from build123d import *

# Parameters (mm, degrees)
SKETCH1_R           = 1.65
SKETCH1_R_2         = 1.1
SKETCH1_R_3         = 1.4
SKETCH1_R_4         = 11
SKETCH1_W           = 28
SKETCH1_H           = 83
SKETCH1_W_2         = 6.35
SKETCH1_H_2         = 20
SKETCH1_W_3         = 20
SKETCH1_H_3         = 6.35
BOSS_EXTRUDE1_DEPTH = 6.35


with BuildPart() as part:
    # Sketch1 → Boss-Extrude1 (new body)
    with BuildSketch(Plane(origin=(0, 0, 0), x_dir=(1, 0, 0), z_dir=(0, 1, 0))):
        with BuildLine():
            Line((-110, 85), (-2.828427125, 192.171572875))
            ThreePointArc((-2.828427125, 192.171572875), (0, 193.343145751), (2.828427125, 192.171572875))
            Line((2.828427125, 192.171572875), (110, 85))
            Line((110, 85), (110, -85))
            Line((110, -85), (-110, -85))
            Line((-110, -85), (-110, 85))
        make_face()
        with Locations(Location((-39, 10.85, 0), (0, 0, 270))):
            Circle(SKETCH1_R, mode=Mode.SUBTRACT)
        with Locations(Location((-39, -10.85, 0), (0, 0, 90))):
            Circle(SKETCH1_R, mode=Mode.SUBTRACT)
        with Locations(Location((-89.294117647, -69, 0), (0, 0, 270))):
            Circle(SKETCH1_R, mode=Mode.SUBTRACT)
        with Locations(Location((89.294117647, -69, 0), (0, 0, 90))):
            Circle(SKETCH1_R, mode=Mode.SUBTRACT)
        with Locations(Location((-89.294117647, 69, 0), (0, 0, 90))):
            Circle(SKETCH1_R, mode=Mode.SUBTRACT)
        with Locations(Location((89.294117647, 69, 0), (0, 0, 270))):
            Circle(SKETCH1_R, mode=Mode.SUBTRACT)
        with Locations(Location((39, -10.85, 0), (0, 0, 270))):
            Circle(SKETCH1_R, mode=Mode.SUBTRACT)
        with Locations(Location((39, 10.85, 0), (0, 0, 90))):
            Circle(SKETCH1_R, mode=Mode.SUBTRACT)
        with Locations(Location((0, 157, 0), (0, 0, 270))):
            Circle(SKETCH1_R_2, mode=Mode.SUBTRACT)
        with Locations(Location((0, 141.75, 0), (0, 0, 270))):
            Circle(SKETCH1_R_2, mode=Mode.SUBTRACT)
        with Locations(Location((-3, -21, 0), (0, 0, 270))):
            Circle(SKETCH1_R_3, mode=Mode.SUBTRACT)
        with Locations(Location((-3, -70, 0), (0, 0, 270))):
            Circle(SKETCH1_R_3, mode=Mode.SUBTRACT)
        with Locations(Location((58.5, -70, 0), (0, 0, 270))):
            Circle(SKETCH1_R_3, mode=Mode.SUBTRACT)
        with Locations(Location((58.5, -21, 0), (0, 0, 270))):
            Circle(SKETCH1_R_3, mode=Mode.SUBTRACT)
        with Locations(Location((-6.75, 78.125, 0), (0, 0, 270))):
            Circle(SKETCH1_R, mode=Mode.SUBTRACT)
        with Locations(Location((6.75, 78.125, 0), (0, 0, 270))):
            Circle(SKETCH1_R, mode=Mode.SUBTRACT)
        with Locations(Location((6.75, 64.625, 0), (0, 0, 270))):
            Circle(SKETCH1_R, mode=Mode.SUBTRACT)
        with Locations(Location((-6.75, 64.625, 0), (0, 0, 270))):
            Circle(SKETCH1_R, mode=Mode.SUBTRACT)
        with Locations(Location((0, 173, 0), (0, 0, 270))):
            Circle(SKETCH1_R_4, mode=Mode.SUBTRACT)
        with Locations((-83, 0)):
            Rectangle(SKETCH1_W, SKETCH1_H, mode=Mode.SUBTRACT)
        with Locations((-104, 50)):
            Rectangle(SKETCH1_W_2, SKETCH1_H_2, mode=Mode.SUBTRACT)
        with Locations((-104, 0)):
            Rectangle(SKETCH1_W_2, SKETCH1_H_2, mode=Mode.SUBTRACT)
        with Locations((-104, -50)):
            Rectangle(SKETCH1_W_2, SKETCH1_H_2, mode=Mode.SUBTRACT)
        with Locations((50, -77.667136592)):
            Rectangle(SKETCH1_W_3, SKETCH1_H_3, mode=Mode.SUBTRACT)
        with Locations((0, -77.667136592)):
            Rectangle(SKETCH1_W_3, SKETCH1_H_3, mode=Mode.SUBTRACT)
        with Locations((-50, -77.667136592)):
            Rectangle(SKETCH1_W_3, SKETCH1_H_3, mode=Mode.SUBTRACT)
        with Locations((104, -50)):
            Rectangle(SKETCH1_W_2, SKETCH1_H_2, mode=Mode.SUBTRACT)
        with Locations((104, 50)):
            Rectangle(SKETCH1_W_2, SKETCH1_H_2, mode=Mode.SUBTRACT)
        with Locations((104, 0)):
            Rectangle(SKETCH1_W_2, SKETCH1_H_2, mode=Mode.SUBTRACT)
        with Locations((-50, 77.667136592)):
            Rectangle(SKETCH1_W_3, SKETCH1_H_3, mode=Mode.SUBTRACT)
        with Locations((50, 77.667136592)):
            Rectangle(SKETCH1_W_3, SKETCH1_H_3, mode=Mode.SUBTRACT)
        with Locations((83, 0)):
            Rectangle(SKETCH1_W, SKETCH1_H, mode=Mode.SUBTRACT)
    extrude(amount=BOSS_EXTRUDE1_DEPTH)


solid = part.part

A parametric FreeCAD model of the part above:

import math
import FreeCAD as App
import Part
import Sketcher
Q = App.Units.Quantity


def add_polygon(sketch, points):
    """Adds a closed chain of lines whose ends are joined by coincident constraints."""
    first, n = sketch.GeometryCount, len(points)
    for a, b in zip(points, points[1:] + points[:1]):
        sketch.addGeometry(Part.LineSegment(App.Vector(*a, 0), App.Vector(*b, 0)), False)
    for i in range(n):
        sketch.addConstraint(Sketcher.Constraint("Coincident", first + i, 2, first + (i + 1) % n, 1))

doc = App.newDocument("Part")
body = doc.addObject("PartDesign::Body", "Body")

# Sketch on XZ plane
sketch1 = body.newObject("Sketcher::SketchObject", "Sketch")
sketch1.AttachmentSupport = (doc.getObject("XZ_Plane"), [""])
sketch1.MapMode = "FlatFace"
sketch1.addGeometry(Part.LineSegment(App.Vector(-2.828427, -192.171573, 0), App.Vector(-110, -85, 0)), False)  # 0
sketch1.addGeometry(Part.LineSegment(App.Vector(-110, -85, 0), App.Vector(-110, 85, 0)), False)  # 1
sketch1.addGeometry(Part.LineSegment(App.Vector(-110, 85, 0), App.Vector(110, 85, 0)), False)  # 2
sketch1.addGeometry(Part.LineSegment(App.Vector(110, 85, 0), App.Vector(110, -85, 0)), False)  # 3
sketch1.addGeometry(Part.LineSegment(App.Vector(110, -85, 0), App.Vector(2.828427, -192.171573, 0)), False)  # 4
sketch1.addGeometry(Part.ArcOfCircle(Part.Circle(App.Vector(0, -189.343146, 0), App.Vector(0, 0, 1), 4), math.radians(-135), math.radians(-45)), False)  # 5
sketch1.addGeometry(Part.Circle(App.Vector(89.294118, 69, 0), App.Vector(0, 0, 1), 1.65), False)  # 6
add_polygon(sketch1, [(100.825, 60), (100.825, 40), (107.175, 40), (107.175, 60)])  # lines 7-10
sketch1.addGeometry(Part.Circle(App.Vector(58.5, 70, 0), App.Vector(0, 0, 1), 1.4), False)  # 11
sketch1.addGeometry(Part.Circle(App.Vector(58.5, 21, 0), App.Vector(0, 0, 1), 1.4), False)  # 12
add_polygon(sketch1, [(40, 80.842137), (40, 74.492137), (60, 74.492137), (60, 80.842137)])  # lines 13-16
add_polygon(sketch1, [(100.825, 10), (100.825, -10), (107.175, -10), (107.175, 10)])  # lines 17-20
add_polygon(sketch1, [(69, 41.5), (69, -41.5), (97, -41.5), (97, 41.5)])  # lines 21-24
add_polygon(sketch1, [(100.825, -40), (100.825, -60), (107.175, -60), (107.175, -40)])  # lines 25-28
sketch1.addGeometry(Part.Circle(App.Vector(39, 10.85, 0), App.Vector(0, 0, 1), 1.65), False)  # 29
sketch1.addGeometry(Part.Circle(App.Vector(39, -10.85, 0), App.Vector(0, 0, 1), 1.65), False)  # 30
add_polygon(sketch1, [(-10, 80.842137), (-10, 74.492137), (10, 74.492137), (10, 80.842137)])  # lines 31-34
sketch1.addGeometry(Part.Circle(App.Vector(-3, 70, 0), App.Vector(0, 0, 1), 1.4), False)  # 35
add_polygon(sketch1, [(-60, 80.842137), (-60, 74.492137), (-40, 74.492137), (-40, 80.842137)])  # lines 36-39
sketch1.addGeometry(Part.Circle(App.Vector(-3, 21, 0), App.Vector(0, 0, 1), 1.4), False)  # 40
sketch1.addGeometry(Part.Circle(App.Vector(-89.294118, 69, 0), App.Vector(0, 0, 1), 1.65), False)  # 41
add_polygon(sketch1, [(-107.175, 60), (-107.175, 40), (-100.825, 40), (-100.825, 60)])  # lines 42-45
sketch1.addGeometry(Part.Circle(App.Vector(-39, 10.85, 0), App.Vector(0, 0, 1), 1.65), False)  # 46
sketch1.addGeometry(Part.Circle(App.Vector(-39, -10.85, 0), App.Vector(0, 0, 1), 1.65), False)  # 47
add_polygon(sketch1, [(-97, 41.5), (-97, -41.5), (-69, -41.5), (-69, 41.5)])  # lines 48-51
add_polygon(sketch1, [(-107.175, 10), (-107.175, -10), (-100.825, -10), (-100.825, 10)])  # lines 52-55
add_polygon(sketch1, [(-107.175, -40), (-107.175, -60), (-100.825, -60), (-100.825, -40)])  # lines 56-59
sketch1.addGeometry(Part.Circle(App.Vector(89.294118, -69, 0), App.Vector(0, 0, 1), 1.65), False)  # 60
add_polygon(sketch1, [(40, -74.492137), (40, -80.842137), (60, -80.842137), (60, -74.492137)])  # lines 61-64
sketch1.addGeometry(Part.Circle(App.Vector(6.75, -64.625, 0), App.Vector(0, 0, 1), 1.65), False)  # 65
sketch1.addGeometry(Part.Circle(App.Vector(6.75, -78.125, 0), App.Vector(0, 0, 1), 1.65), False)  # 66
sketch1.addGeometry(Part.Circle(App.Vector(-6.75, -64.625, 0), App.Vector(0, 0, 1), 1.65), False)  # 67
sketch1.addGeometry(Part.Circle(App.Vector(-6.75, -78.125, 0), App.Vector(0, 0, 1), 1.65), False)  # 68
add_polygon(sketch1, [(-60, -74.492137), (-60, -80.842137), (-40, -80.842137), (-40, -74.492137)])  # lines 69-72
sketch1.addGeometry(Part.Circle(App.Vector(-89.294118, -69, 0), App.Vector(0, 0, 1), 1.65), False)  # 73
sketch1.addGeometry(Part.Circle(App.Vector(0, -141.75, 0), App.Vector(0, 0, 1), 1.1), False)  # 74
sketch1.addGeometry(Part.Circle(App.Vector(0, -157, 0), App.Vector(0, 0, 1), 1.1), False)  # 75
sketch1.addGeometry(Part.Circle(App.Vector(0, -173, 0), App.Vector(0, 0, 1), 11), False)  # 76
sketch1.addConstraint(Sketcher.Constraint("Coincident", 0, 2, 1, 1))
sketch1.addConstraint(Sketcher.Constraint("Coincident", 1, 2, 2, 1))
sketch1.addConstraint(Sketcher.Constraint("Coincident", 2, 2, 3, 1))
sketch1.addConstraint(Sketcher.Constraint("Coincident", 3, 2, 4, 1))
sketch1.addConstraint(Sketcher.Constraint("Tangent", 4, 2, 5, 2))
sketch1.addConstraint(Sketcher.Constraint("Tangent", 5, 1, 0, 1))
sketch1.addConstraint(Sketcher.Constraint("Vertical", 1))
sketch1.addConstraint(Sketcher.Constraint("Horizontal", 2))
sketch1.addConstraint(Sketcher.Constraint("Vertical", 3))
sketch1.addConstraint(Sketcher.Constraint("Vertical", 7))
sketch1.addConstraint(Sketcher.Constraint("Horizontal", 8))
sketch1.addConstraint(Sketcher.Constraint("Vertical", 9))
sketch1.addConstraint(Sketcher.Constraint("Horizontal", 10))
sketch1.addConstraint(Sketcher.Constraint("Vertical", 13))
sketch1.addConstraint(Sketcher.Constraint("Horizontal", 14))
sketch1.addConstraint(Sketcher.Constraint("Vertical", 15))
sketch1.addConstraint(Sketcher.Constraint("Horizontal", 16))
sketch1.addConstraint(Sketcher.Constraint("Vertical", 17))
sketch1.addConstraint(Sketcher.Constraint("Horizontal", 18))
sketch1.addConstraint(Sketcher.Constraint("Vertical", 19))
sketch1.addConstraint(Sketcher.Constraint("Horizontal", 20))
sketch1.addConstraint(Sketcher.Constraint("Vertical", 21))
sketch1.addConstraint(Sketcher.Constraint("Horizontal", 22))
sketch1.addConstraint(Sketcher.Constraint("Vertical", 23))
sketch1.addConstraint(Sketcher.Constraint("Horizontal", 24))
sketch1.addConstraint(Sketcher.Constraint("Vertical", 25))
sketch1.addConstraint(Sketcher.Constraint("Horizontal", 26))
sketch1.addConstraint(Sketcher.Constraint("Vertical", 27))
sketch1.addConstraint(Sketcher.Constraint("Horizontal", 28))
sketch1.addConstraint(Sketcher.Constraint("Vertical", 31))
sketch1.addConstraint(Sketcher.Constraint("Horizontal", 32))
sketch1.addConstraint(Sketcher.Constraint("Vertical", 33))
sketch1.addConstraint(Sketcher.Constraint("Horizontal", 34))
sketch1.addConstraint(Sketcher.Constraint("Vertical", 36))
sketch1.addConstraint(Sketcher.Constraint("Horizontal", 37))
sketch1.addConstraint(Sketcher.Constraint("Vertical", 38))
sketch1.addConstraint(Sketcher.Constraint("Horizontal", 39))
sketch1.addConstraint(Sketcher.Constraint("Vertical", 42))
sketch1.addConstraint(Sketcher.Constraint("Horizontal", 43))
sketch1.addConstraint(Sketcher.Constraint("Vertical", 44))
sketch1.addConstraint(Sketcher.Constraint("Horizontal", 45))
sketch1.addConstraint(Sketcher.Constraint("Vertical", 48))
sketch1.addConstraint(Sketcher.Constraint("Horizontal", 49))
sketch1.addConstraint(Sketcher.Constraint("Vertical", 50))
sketch1.addConstraint(Sketcher.Constraint("Horizontal", 51))
sketch1.addConstraint(Sketcher.Constraint("Vertical", 52))
sketch1.addConstraint(Sketcher.Constraint("Horizontal", 53))
sketch1.addConstraint(Sketcher.Constraint("Vertical", 54))
sketch1.addConstraint(Sketcher.Constraint("Horizontal", 55))
sketch1.addConstraint(Sketcher.Constraint("Vertical", 56))
sketch1.addConstraint(Sketcher.Constraint("Horizontal", 57))
sketch1.addConstraint(Sketcher.Constraint("Vertical", 58))
sketch1.addConstraint(Sketcher.Constraint("Horizontal", 59))
sketch1.addConstraint(Sketcher.Constraint("Vertical", 61))
sketch1.addConstraint(Sketcher.Constraint("Horizontal", 62))
sketch1.addConstraint(Sketcher.Constraint("Vertical", 63))
sketch1.addConstraint(Sketcher.Constraint("Horizontal", 64))
sketch1.addConstraint(Sketcher.Constraint("Vertical", 69))
sketch1.addConstraint(Sketcher.Constraint("Horizontal", 70))
sketch1.addConstraint(Sketcher.Constraint("Vertical", 71))
sketch1.addConstraint(Sketcher.Constraint("Horizontal", 72))
sketch1.addConstraint(Sketcher.Constraint("Equal", 11, 12))
sketch1.addConstraint(Sketcher.Constraint("Equal", 6, 29))
sketch1.addConstraint(Sketcher.Constraint("Equal", 29, 30))
sketch1.addConstraint(Sketcher.Constraint("Equal", 12, 35))
sketch1.addConstraint(Sketcher.Constraint("Equal", 35, 40))
sketch1.addConstraint(Sketcher.Constraint("Equal", 30, 41))
sketch1.addConstraint(Sketcher.Constraint("Equal", 41, 46))
sketch1.addConstraint(Sketcher.Constraint("Equal", 46, 47))
sketch1.addConstraint(Sketcher.Constraint("Equal", 47, 60))
sketch1.addConstraint(Sketcher.Constraint("Equal", 60, 65))
sketch1.addConstraint(Sketcher.Constraint("Equal", 65, 66))
sketch1.addConstraint(Sketcher.Constraint("Equal", 66, 67))
sketch1.addConstraint(Sketcher.Constraint("Equal", 67, 68))
sketch1.addConstraint(Sketcher.Constraint("Equal", 68, 73))
sketch1.addConstraint(Sketcher.Constraint("Equal", 74, 75))
sketch1.addConstraint(Sketcher.Constraint("Symmetric", 30, 3, 46, 3, -1, 1))
sketch1.addConstraint(Sketcher.Constraint("Symmetric", 29, 3, 47, 3, -1, 1))
sketch1.addConstraint(Sketcher.Constraint("Symmetric", 41, 3, 60, 3, -1, 1))
sketch1.addConstraint(Sketcher.Constraint("Symmetric", 6, 3, 73, 3, -1, 1))
sketch1.addConstraint(Sketcher.Constraint("Symmetric", 0, 2, 2, 2, -1, 1))
sketch1.addConstraint(Sketcher.Constraint("Symmetric", 27, 2, 42, 2, -1, 1))
sketch1.addConstraint(Sketcher.Constraint("Symmetric", 25, 2, 44, 2, -1, 1))
sketch1.addConstraint(Sketcher.Constraint("Symmetric", 23, 2, 48, 2, -1, 1))
sketch1.addConstraint(Sketcher.Constraint("Symmetric", 21, 2, 50, 2, -1, 1))
sketch1.addConstraint(Sketcher.Constraint("Symmetric", 19, 2, 52, 2, -1, 1))
sketch1.addConstraint(Sketcher.Constraint("Symmetric", 17, 2, 54, 2, -1, 1))
sketch1.addConstraint(Sketcher.Constraint("Symmetric", 9, 2, 56, 2, -1, 1))
sketch1.addConstraint(Sketcher.Constraint("Symmetric", 7, 2, 58, 2, -1, 1))
sketch1.addConstraint(Sketcher.Constraint("Symmetric", 38, 2, 61, 2, -1, 1))
sketch1.addConstraint(Sketcher.Constraint("Symmetric", 36, 2, 63, 2, -1, 1))
sketch1.addConstraint(Sketcher.Constraint("Symmetric", 15, 2, 69, 2, -1, 1))
sketch1.addConstraint(Sketcher.Constraint("Symmetric", 13, 2, 71, 2, -1, 1))
sketch1.addConstraint(Sketcher.Constraint("Symmetric", 6, 3, 41, 3, -2))
sketch1.addConstraint(Sketcher.Constraint("Symmetric", 29, 3, 46, 3, -2))
sketch1.addConstraint(Sketcher.Constraint("Symmetric", 65, 3, 67, 3, -2))
sketch1.addConstraint(Sketcher.Constraint("Symmetric", 66, 3, 68, 3, -2))
sketch1.addConstraint(Sketcher.Constraint("Symmetric", 4, 2, 5, 1, -2))
sketch1.addConstraint(Sketcher.Constraint("Symmetric", 14, 2, 36, 2, -2))
sketch1.addConstraint(Sketcher.Constraint("Symmetric", 16, 2, 38, 2, -2))
sketch1.addConstraint(Sketcher.Constraint("Symmetric", 8, 2, 42, 2, -2))
sketch1.addConstraint(Sketcher.Constraint("Symmetric", 10, 2, 44, 2, -2))
sketch1.addConstraint(Sketcher.Constraint("PointOnObject", 74, 3, -2))
sketch1.addConstraint(Sketcher.Constraint("PointOnObject", 75, 3, -2))
sketch1.addConstraint(Sketcher.Constraint("PointOnObject", 76, 3, -2))
sketch1.addConstraint(Sketcher.Constraint("Perpendicular", 0, 4))
sketch1.addConstraint(Sketcher.Constraint("Horizontal", 11, 3, 35, 3))
sketch1.addConstraint(Sketcher.Constraint("Horizontal", 12, 3, 40, 3))
sketch1.addConstraint(Sketcher.Constraint("Horizontal", 14, 2, 31, 2))
sketch1.addConstraint(Sketcher.Constraint("Horizontal", 16, 2, 33, 2))
sketch1.addConstraint(Sketcher.Constraint("Horizontal", 22, 2, 48, 2))
sketch1.addConstraint(Sketcher.Constraint("Horizontal", 18, 2, 52, 2))
sketch1.addConstraint(Sketcher.Constraint("Vertical", 11, 3, 12, 3))
sketch1.addConstraint(Sketcher.Constraint("Vertical", 35, 3, 40, 3))
sketch1.addConstraint(Sketcher.Constraint("Vertical", 65, 3, 66, 3))
sketch1.addConstraint(Sketcher.Constraint("Vertical", 10, 2, 17, 2))
sketch1.addConstraint(Sketcher.Constraint("Vertical", 9, 2, 18, 2))
sketch1.addConstraint(Sketcher.Constraint("Equal", 16, 32))
sketch1.addConstraint(Sketcher.Constraint("Equal", 72, 7))
sketch1.addConstraint(Sketcher.Constraint("Equal", 59, 13))
sketch1.addConstraint(Sketcher.Constraint("Equal", 9, 17))
sketch1.addConstraint(Sketcher.Constraint("Diameter", 76, Q("22 mm")))
sketch1.addConstraint(Sketcher.Constraint("Radius", 5, Q("4 mm")))
sketch1.addConstraint(Sketcher.Constraint("Diameter", 6, Q("3.3 mm")))
sketch1.addConstraint(Sketcher.Constraint("Diameter", 11, Q("2.8 mm")))
sketch1.addConstraint(Sketcher.Constraint("Diameter", 74, Q("2.2 mm")))
sketch1.addConstraint(Sketcher.Constraint("DistanceX", 2, 1, 2, 2, Q("220 mm")))
sketch1.addConstraint(Sketcher.Constraint("DistanceX", 14, 1, 14, 2, Q("20 mm")))
sketch1.addConstraint(Sketcher.Constraint("DistanceX", 22, 1, 22, 2, Q("28 mm")))
sketch1.addConstraint(Sketcher.Constraint("DistanceY", 1, 1, 1, 2, Q("170 mm")))
sketch1.addConstraint(Sketcher.Constraint("DistanceY", 21, 2, 21, 1, Q("83 mm")))
sketch1.addConstraint(Sketcher.Constraint("DistanceY", -1, 1, 6, 3, Q("69 mm")))
sketch1.addConstraint(Sketcher.Constraint("DistanceY", -1, 1, 11, 3, Q("70 mm")))
sketch1.addConstraint(Sketcher.Constraint("DistanceY", -1, 1, 12, 3, Q("21 mm")))
sketch1.addConstraint(Sketcher.Constraint("DistanceX", -1, 1, 29, 3, Q("39 mm")))
sketch1.addConstraint(Sketcher.Constraint("DistanceX", 35, 3, -1, 1, Q("3 mm")))
sketch1.addConstraint(Sketcher.Constraint("DistanceY", 75, 3, -1, 1, Q("157 mm")))
sketch1.addConstraint(Sketcher.Constraint("DistanceY", 76, 3, -1, 1, Q("173 mm")))
sketch1.addConstraint(Sketcher.Constraint("DistanceY", -1, 1, 7, 2, Q("40 mm")))
sketch1.addConstraint(Sketcher.Constraint("DistanceX", -1, 1, 13, 2, Q("40 mm")))
sketch1.addConstraint(Sketcher.Constraint("DistanceX", -1, 1, 21, 2, Q("69 mm")))
sketch1.addConstraint(Sketcher.Constraint("DistanceX", 31, 2, -1, 1, Q("10 mm")))
sketch1.addConstraint(Sketcher.Constraint("DistanceX", 8, 1, 8, 2, Q("6.35 mm")))
sketch1.addConstraint(Sketcher.Constraint("DistanceX", -1, 1, 11, 3, Q("58.5 mm")))
sketch1.addConstraint(Sketcher.Constraint("DistanceY", -1, 1, 29, 3, Q("10.85 mm")))
sketch1.addConstraint(Sketcher.Constraint("DistanceX", -1, 1, 65, 3, Q("6.75 mm")))
sketch1.addConstraint(Sketcher.Constraint("DistanceY", 74, 3, -1, 1, Q("141.75 mm")))
sketch1.addConstraint(Sketcher.Constraint("DistanceY", 65, 3, -1, 1, Q("64.625 mm")))
sketch1.addConstraint(Sketcher.Constraint("DistanceY", 66, 3, -1, 1, Q("78.125 mm")))
sketch1.addConstraint(Sketcher.Constraint("DistanceX", -1, 1, 7, 2, Q("100.825 mm")))
sketch1.addConstraint(Sketcher.Constraint("DistanceX", -1, 1, 6, 3, Q("89.294118 mm")))
sketch1.addConstraint(Sketcher.Constraint("DistanceY", -1, 1, 13, 2, Q("74.492137 mm")))
pad1 = body.newObject("PartDesign::Pad", "Pad")
pad1.Profile = sketch1
pad1.Length = 6.35
pad1.Reversed = True

doc.recompute()
